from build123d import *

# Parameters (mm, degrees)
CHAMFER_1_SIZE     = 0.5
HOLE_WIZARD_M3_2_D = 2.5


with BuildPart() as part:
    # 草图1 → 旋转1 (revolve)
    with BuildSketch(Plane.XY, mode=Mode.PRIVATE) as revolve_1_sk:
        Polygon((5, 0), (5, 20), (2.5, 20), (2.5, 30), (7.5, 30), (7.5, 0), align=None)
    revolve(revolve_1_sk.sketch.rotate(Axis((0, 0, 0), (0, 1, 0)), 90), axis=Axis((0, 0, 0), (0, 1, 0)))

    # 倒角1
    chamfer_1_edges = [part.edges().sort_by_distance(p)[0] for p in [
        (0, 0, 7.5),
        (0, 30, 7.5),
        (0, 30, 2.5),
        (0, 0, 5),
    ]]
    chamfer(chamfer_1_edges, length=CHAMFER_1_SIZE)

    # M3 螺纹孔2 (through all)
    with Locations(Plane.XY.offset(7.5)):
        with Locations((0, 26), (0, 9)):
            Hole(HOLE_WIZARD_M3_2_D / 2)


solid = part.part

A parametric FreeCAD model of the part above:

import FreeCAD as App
import Part
import Sketcher
from FreeCAD import Vector
Q = App.Units.Quantity


def edges_at(feature, points):
    """Names of the edges that pass closest to the given points."""
    edges = feature.Shape.Edges
    near = lambda p: min(range(len(edges)), key=lambda i: edges[i].distToShape(Part.Vertex(*p))[0])
    return sorted({f"Edge{near(p) + 1}" for p in points})

doc = App.newDocument("Part")
body = doc.addObject("PartDesign::Body", "Body")

# Sketch on XY plane
sketch1 = body.newObject("Sketcher::SketchObject", "Sketch")
sketch1.AttachmentSupport = (doc.getObject("XY_Plane"), [""])
sketch1.MapMode = "FlatFace"
sketch1.addGeometry(Part.LineSegment(Vector(5, 20, 0), Vector(5, 0, 0)), False)
sketch1.addGeometry(Part.LineSegment(Vector(5, 0, 0), Vector(7.5, 0, 0)), False)
sketch1.addGeometry(Part.LineSegment(Vector(7.5, 0, 0), Vector(7.5, 30, 0)), False)
sketch1.addGeometry(Part.LineSegment(Vector(7.5, 30, 0), Vector(2.5, 30, 0)), False)
sketch1.addGeometry(Part.LineSegment(Vector(2.5, 30, 0), Vector(2.5, 20, 0)), False)
sketch1.addGeometry(Part.LineSegment(Vector(2.5, 20, 0), Vector(5, 20, 0)), False)
sketch1.addConstraint(Sketcher.Constraint("Coincident", 0, 2, 1, 1))
sketch1.addConstraint(Sketcher.Constraint("Coincident", 1, 2, 2, 1))
sketch1.addConstraint(Sketcher.Constraint("Coincident", 2, 2, 3, 1))
sketch1.addConstraint(Sketcher.Constraint("Coincident", 3, 2, 4, 1))
sketch1.addConstraint(Sketcher.Constraint("Coincident", 4, 2, 5, 1))
sketch1.addConstraint(Sketcher.Constraint("Coincident", 5, 2, 0, 1))
sketch1.addConstraint(Sketcher.Constraint("Vertical", 0))
sketch1.addConstraint(Sketcher.Constraint("Horizontal", 1))
sketch1.addConstraint(Sketcher.Constraint("Vertical", 2))
sketch1.addConstraint(Sketcher.Constraint("Horizontal", 3))
sketch1.addConstraint(Sketcher.Constraint("Vertical", 4))
sketch1.addConstraint(Sketcher.Constraint("Horizontal", 5))
sketch1.addConstraint(Sketcher.Constraint("PointOnObject", 0, 2, -1))
sketch1.addConstraint(Sketcher.Constraint("Equal", 1, 5))
sketch1.addConstraint(Sketcher.Constraint("DistanceX", 3, 2, 3, 1, Q("5 mm")))
sketch1.addConstraint(Sketcher.Constraint("DistanceY", 0, 2, 0, 1, Q("20 mm")))
sketch1.addConstraint(Sketcher.Constraint("DistanceY", 2, 1, 2, 2, Q("30 mm")))
sketch1.addConstraint(Sketcher.Constraint("DistanceX", -1, 1, 0, 2, Q("5 mm")))
revolution = body.newObject("PartDesign::Revolution", "Revolution")
revolution.Profile = sketch1
revolution.ReferenceAxis = (sketch1, ["V_Axis"])
revolution.Angle = 360
doc.recompute()

chamfer = body.newObject("PartDesign::Chamfer", "Chamfer")
chamfer.Base = (revolution, edges_at(revolution, [
    (0, 0, 7.5),
    (0, 30, 7.5),
    (0, 30, 2.5),
    (0, 0, 5),
]))
chamfer.Size = 0.5

# Sketch on XY plane
sketch2 = body.newObject("Sketcher::SketchObject", "Sketch001")
sketch2.AttachmentSupport = (doc.getObject("XY_Plane"), [""])
sketch2.MapMode = "FlatFace"
sketch2.AttachmentOffset = App.Placement(Vector(0, 0, 7.5), App.Rotation())
sketch2.addGeometry(Part.Circle(Vector(0, 26, 0), Vector(0, 0, 1), 1.2), False)
sketch2.addGeometry(Part.Circle(Vector(0, 9, 0), Vector(0, 0, 1), 1.2), False)
sketch2.addConstraint(Sketcher.Constraint("Equal", 0, 1))
sketch2.addConstraint(Sketcher.Constraint("PointOnObject", 0, 3, -2))
sketch2.addConstraint(Sketcher.Constraint("PointOnObject", 1, 3, -2))
sketch2.addConstraint(Sketcher.Constraint("Diameter", 0, Q("2.5 mm")))
sketch2.addConstraint(Sketcher.Constraint("DistanceY", -1, 1, 0, 3, Q("26 mm")))
sketch2.addConstraint(Sketcher.Constraint("DistanceY", -1, 1, 1, 3, Q("9 mm")))
doc.recompute()
hole = body.newObject("PartDesign::Hole", "Hole")
hole.Profile = sketch2
hole.ThreadType = "None"
hole.Diameter = 2.5
hole.DepthType = "ThroughAll"

doc.recompute()
